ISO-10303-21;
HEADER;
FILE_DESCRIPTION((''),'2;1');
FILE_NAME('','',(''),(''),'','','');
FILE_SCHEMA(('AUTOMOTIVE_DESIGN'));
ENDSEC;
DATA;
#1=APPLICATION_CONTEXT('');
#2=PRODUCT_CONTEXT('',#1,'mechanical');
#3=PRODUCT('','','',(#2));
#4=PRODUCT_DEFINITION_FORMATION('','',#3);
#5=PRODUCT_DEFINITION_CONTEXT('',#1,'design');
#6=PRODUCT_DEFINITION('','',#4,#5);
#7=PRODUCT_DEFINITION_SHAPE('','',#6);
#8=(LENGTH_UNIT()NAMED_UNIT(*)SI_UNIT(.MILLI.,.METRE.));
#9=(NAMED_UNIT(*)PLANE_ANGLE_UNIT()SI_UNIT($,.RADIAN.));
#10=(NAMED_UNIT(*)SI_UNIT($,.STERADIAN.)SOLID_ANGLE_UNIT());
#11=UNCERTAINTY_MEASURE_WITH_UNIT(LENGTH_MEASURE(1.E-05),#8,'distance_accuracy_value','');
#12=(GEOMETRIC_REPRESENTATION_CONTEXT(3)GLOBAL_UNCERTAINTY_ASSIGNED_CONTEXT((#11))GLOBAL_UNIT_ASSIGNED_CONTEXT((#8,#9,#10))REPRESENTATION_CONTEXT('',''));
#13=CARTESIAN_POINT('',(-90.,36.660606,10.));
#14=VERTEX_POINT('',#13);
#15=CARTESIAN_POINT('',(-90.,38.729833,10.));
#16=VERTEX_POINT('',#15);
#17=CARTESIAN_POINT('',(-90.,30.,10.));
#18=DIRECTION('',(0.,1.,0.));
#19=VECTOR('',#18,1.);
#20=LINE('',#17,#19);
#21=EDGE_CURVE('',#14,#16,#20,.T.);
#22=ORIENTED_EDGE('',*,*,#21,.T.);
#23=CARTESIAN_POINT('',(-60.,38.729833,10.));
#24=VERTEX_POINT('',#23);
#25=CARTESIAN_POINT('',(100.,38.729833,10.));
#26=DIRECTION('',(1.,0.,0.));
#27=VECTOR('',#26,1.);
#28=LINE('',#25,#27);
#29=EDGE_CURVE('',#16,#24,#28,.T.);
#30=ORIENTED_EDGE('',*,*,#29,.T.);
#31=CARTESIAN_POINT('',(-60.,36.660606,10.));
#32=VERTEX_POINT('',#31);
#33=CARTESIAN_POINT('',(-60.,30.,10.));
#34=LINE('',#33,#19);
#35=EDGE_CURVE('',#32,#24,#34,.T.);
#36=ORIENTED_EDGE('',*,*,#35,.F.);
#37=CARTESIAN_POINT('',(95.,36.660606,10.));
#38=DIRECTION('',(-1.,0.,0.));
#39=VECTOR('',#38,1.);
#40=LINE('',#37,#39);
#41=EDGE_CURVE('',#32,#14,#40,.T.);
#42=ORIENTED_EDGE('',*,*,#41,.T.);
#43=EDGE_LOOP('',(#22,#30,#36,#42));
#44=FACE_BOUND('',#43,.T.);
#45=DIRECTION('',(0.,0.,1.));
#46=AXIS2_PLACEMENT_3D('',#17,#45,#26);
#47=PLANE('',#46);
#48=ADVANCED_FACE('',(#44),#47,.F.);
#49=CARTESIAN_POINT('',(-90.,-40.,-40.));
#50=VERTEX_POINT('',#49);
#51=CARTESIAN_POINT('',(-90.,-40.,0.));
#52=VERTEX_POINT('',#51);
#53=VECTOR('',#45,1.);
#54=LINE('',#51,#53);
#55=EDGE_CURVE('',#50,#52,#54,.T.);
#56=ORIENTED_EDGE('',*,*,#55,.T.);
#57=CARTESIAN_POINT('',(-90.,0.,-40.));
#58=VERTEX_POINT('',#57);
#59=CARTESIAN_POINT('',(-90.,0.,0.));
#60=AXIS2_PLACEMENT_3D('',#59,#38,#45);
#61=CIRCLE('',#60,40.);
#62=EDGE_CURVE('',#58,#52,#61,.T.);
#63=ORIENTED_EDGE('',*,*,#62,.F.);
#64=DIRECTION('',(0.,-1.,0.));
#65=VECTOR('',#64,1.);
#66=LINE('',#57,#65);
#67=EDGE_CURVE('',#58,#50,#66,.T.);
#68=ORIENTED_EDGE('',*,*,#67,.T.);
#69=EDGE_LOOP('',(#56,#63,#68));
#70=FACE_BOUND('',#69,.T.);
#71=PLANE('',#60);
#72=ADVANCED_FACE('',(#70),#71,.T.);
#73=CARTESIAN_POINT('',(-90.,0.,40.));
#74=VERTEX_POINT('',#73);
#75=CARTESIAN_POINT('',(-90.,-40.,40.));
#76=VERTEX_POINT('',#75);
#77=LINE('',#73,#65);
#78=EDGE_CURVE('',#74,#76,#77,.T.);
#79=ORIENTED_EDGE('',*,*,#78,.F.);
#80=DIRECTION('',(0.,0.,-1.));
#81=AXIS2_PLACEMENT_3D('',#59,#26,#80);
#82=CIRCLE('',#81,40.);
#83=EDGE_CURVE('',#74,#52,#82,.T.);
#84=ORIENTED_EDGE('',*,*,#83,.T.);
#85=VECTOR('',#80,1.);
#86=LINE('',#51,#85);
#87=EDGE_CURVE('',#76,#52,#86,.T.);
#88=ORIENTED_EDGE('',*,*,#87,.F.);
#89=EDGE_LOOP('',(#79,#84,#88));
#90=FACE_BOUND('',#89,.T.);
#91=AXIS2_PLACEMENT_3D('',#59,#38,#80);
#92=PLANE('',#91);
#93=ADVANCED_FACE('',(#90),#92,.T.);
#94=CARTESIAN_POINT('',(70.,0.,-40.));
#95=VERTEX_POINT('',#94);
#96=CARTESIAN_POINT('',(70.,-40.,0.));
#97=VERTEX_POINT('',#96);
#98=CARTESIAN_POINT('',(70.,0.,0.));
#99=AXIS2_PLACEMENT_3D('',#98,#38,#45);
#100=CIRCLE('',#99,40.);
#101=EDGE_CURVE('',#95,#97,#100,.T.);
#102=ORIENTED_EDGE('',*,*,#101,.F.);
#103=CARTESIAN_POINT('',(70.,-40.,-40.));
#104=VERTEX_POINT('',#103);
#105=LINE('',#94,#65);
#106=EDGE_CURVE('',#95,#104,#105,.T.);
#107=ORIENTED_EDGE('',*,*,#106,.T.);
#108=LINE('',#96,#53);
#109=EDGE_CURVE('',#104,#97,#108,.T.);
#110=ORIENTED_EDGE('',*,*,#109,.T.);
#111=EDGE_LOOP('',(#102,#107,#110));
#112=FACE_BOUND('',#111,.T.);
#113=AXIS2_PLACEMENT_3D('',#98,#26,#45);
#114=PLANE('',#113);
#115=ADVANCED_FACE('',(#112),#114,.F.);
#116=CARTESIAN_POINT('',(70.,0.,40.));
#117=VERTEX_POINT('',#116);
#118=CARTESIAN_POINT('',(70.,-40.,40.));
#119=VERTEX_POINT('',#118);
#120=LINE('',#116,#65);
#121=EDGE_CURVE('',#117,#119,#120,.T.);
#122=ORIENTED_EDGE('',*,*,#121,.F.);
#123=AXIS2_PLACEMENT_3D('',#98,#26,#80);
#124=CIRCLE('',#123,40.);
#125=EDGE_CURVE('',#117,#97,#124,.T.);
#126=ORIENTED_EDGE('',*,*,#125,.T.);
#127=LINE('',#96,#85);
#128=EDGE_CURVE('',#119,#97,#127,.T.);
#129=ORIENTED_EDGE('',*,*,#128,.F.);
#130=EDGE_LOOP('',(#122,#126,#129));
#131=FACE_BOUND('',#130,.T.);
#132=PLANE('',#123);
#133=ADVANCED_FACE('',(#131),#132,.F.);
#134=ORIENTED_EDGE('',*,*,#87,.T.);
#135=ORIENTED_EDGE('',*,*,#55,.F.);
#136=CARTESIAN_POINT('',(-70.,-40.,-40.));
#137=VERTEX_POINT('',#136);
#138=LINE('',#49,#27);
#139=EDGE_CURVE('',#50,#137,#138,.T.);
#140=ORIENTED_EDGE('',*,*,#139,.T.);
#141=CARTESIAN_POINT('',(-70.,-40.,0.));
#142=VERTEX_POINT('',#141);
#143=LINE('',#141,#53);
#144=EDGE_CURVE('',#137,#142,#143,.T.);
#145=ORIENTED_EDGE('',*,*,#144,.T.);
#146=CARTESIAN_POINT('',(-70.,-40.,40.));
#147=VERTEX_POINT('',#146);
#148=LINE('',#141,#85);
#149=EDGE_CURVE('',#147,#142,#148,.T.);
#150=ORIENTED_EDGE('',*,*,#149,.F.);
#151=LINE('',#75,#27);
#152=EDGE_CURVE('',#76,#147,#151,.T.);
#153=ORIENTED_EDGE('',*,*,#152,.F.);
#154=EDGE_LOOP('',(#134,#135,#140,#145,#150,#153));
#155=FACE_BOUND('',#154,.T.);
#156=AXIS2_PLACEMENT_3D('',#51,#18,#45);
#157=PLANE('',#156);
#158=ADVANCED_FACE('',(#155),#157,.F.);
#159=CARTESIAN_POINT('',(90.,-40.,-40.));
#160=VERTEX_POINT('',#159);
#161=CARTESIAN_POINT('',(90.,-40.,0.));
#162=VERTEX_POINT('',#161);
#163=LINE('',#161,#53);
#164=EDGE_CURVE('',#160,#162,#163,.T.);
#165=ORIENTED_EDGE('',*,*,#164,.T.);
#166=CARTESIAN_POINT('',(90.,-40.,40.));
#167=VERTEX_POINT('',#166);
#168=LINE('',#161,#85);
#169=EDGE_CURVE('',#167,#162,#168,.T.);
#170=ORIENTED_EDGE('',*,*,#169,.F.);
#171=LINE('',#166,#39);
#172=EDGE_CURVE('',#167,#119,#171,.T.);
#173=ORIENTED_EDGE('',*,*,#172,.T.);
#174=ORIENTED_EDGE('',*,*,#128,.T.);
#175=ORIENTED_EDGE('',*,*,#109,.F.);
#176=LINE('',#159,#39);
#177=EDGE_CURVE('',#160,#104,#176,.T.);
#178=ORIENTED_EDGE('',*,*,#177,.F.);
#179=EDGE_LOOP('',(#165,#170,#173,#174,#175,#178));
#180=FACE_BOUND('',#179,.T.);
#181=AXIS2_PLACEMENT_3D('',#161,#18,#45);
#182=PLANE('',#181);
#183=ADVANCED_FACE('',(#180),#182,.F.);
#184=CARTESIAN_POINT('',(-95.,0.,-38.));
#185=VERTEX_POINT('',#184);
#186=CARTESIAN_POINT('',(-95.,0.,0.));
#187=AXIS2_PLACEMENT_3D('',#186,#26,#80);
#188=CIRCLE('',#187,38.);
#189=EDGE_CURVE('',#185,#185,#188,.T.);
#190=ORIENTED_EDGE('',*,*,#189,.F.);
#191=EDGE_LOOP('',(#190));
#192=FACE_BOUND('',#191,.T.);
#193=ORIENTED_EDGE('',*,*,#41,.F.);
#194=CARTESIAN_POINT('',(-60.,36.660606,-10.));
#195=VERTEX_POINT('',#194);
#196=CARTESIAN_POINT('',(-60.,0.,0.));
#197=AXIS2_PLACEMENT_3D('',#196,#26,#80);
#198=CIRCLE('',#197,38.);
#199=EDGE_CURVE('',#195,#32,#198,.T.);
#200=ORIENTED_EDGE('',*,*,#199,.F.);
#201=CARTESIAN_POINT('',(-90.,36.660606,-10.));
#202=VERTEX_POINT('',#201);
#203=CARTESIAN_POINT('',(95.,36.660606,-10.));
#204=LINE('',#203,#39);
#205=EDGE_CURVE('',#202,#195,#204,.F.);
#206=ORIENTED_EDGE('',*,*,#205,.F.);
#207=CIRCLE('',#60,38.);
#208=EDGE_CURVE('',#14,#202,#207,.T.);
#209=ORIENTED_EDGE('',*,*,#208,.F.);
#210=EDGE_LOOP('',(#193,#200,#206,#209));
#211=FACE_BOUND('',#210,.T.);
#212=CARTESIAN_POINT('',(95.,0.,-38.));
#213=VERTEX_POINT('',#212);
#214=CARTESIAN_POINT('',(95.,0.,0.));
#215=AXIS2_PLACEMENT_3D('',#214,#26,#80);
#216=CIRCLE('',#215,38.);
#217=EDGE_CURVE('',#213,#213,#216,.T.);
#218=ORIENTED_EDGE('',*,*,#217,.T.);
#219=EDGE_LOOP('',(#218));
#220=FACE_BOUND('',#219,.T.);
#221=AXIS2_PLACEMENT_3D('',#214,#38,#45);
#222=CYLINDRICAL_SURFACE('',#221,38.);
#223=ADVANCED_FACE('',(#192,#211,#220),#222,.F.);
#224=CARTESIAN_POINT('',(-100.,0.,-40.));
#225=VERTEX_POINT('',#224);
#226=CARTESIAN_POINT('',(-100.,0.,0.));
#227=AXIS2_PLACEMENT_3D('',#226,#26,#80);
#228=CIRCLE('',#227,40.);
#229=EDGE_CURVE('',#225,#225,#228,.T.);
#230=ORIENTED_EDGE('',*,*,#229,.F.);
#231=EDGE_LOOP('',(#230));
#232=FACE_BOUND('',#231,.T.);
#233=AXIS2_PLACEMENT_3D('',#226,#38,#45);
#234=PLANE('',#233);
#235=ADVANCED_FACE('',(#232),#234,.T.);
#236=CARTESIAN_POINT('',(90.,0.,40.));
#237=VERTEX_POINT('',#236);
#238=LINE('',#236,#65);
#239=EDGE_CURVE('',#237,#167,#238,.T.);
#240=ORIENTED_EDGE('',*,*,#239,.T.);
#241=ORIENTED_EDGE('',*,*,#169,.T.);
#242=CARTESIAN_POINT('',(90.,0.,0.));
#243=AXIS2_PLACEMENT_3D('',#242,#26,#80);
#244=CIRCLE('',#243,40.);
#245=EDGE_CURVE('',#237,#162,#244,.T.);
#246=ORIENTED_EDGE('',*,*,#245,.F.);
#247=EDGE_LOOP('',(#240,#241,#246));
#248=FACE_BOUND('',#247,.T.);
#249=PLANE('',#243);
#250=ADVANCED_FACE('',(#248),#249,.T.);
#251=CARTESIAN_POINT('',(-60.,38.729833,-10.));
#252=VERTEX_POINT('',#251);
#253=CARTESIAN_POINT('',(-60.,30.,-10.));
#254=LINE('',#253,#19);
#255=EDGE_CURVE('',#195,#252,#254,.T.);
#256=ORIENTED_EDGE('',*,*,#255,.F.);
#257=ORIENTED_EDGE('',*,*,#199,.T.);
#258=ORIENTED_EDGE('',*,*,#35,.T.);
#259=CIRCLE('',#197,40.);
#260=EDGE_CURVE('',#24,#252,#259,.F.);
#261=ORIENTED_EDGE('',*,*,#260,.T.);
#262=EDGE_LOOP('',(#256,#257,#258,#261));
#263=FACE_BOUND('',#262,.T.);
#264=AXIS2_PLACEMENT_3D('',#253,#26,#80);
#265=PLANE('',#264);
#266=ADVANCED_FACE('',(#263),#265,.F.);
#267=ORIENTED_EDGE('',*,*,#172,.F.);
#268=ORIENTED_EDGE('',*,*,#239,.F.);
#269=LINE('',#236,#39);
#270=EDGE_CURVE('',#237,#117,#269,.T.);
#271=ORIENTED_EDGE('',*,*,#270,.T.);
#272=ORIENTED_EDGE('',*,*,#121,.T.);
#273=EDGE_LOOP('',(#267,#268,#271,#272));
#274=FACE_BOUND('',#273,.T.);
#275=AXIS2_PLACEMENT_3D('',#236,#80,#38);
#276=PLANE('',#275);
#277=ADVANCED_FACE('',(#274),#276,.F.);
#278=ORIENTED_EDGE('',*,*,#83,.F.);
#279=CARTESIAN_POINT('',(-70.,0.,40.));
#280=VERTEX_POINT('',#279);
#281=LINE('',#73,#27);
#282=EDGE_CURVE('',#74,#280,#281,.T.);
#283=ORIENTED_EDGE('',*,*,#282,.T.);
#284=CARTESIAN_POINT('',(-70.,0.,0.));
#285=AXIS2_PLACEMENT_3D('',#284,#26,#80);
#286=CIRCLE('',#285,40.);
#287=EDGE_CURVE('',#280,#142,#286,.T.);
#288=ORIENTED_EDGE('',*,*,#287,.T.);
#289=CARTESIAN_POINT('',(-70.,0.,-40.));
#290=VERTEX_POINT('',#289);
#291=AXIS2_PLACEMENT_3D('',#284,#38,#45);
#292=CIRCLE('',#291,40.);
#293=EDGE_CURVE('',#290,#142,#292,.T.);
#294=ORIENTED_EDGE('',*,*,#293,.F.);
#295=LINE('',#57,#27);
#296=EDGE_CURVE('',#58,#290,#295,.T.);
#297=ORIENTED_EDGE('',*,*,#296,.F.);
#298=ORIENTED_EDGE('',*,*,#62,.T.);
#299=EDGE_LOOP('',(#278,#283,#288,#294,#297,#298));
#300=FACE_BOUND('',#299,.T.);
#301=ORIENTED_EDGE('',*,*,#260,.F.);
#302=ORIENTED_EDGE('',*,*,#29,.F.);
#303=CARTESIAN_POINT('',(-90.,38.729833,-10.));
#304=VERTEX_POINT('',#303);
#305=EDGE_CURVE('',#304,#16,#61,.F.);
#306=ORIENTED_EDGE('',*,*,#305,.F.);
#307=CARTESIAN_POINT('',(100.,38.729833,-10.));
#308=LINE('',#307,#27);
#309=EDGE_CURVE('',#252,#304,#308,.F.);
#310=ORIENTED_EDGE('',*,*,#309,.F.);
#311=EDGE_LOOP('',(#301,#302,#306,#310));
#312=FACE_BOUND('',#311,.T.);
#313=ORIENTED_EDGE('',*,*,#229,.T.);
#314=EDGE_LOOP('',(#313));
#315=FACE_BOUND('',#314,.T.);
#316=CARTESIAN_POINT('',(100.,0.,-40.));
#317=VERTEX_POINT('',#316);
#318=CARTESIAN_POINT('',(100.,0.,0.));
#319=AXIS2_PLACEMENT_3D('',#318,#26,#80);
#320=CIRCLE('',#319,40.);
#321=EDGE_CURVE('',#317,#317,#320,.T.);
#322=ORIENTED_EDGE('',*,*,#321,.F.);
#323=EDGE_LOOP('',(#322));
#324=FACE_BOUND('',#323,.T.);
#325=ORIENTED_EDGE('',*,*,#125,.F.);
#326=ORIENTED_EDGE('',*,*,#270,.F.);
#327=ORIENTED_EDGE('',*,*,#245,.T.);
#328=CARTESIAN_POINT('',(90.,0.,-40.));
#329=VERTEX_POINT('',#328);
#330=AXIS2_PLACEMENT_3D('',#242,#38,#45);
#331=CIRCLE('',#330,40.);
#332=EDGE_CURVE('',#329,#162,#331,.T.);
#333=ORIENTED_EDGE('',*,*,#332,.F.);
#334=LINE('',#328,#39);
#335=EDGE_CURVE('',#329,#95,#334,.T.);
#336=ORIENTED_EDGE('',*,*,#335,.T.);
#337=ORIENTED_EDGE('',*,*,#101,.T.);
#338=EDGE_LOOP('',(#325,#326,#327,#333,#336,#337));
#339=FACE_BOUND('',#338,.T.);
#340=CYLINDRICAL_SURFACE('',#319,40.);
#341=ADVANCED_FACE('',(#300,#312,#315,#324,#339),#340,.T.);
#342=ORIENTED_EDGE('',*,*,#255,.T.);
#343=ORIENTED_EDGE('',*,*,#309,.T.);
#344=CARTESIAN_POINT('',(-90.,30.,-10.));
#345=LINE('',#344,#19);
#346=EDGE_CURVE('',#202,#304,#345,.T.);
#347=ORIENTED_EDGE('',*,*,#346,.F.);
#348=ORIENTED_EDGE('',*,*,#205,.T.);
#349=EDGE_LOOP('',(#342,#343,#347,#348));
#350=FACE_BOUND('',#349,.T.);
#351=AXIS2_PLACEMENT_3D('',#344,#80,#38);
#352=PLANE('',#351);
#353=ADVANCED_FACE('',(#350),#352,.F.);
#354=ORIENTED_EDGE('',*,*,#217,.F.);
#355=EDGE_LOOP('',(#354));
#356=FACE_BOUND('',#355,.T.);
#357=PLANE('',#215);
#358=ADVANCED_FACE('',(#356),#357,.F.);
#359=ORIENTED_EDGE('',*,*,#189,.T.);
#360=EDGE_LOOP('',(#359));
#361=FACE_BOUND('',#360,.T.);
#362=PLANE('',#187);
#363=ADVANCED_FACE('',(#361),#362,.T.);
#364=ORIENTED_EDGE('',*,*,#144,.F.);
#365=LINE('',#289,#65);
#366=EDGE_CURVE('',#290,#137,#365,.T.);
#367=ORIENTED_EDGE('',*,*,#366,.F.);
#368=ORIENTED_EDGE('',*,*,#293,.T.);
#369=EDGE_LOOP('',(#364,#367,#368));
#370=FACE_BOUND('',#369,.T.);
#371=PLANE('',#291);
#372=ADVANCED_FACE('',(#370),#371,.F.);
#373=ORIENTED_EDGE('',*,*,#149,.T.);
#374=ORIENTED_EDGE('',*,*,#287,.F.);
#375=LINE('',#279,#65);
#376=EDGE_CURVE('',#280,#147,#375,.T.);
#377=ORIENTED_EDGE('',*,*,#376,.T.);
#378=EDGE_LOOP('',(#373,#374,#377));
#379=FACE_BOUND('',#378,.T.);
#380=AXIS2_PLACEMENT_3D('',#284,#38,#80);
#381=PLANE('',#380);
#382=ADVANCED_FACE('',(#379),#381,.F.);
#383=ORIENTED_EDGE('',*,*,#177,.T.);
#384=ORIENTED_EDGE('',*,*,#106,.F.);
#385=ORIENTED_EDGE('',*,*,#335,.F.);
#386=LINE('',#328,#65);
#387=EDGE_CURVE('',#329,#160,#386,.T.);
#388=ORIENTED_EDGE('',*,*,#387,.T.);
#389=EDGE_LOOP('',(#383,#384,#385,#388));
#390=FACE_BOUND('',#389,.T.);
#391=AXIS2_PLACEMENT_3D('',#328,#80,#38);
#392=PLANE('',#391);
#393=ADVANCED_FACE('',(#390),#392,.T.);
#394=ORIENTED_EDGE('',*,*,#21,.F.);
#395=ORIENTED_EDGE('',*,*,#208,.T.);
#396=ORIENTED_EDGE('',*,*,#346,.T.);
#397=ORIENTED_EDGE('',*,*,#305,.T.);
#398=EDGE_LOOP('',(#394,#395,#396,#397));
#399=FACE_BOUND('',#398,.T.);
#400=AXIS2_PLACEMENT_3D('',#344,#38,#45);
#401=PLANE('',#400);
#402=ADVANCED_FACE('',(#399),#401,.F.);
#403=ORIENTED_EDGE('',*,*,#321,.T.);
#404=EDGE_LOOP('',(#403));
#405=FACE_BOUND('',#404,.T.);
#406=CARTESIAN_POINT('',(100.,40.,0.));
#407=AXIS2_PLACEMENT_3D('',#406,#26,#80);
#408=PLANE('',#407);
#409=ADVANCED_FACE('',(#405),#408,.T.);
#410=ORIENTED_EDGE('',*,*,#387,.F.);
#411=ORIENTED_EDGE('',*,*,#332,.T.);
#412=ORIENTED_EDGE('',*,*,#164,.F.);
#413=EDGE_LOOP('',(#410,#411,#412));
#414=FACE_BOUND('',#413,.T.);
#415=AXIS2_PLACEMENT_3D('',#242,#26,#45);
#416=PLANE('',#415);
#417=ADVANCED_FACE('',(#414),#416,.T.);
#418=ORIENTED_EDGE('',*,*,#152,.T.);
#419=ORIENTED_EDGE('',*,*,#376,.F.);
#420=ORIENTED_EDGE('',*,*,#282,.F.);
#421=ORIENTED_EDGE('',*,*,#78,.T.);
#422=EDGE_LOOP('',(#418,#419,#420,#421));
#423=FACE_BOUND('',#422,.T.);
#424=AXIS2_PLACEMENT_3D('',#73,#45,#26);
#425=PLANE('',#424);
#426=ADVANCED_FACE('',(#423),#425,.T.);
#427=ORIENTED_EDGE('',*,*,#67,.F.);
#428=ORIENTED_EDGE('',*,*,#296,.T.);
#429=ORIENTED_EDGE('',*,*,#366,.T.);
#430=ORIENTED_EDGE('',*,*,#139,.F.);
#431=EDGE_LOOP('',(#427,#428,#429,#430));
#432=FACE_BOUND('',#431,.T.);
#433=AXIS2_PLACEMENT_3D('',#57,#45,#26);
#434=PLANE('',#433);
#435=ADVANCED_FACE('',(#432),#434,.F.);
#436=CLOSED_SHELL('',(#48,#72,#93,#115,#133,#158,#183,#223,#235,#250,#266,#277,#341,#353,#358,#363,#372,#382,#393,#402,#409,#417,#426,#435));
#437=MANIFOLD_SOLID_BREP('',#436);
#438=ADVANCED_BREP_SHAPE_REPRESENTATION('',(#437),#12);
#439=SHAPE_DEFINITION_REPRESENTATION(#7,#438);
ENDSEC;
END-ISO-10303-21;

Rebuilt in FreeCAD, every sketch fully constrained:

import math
import FreeCAD as App
import Part
import Sketcher


def add_polygon(sketch, points):
    """Adds a closed chain of lines whose ends are joined by coincident constraints."""
    first, n = sketch.GeometryCount, len(points)
    for a, b in zip(points, points[1:] + points[:1]):
        sketch.addGeometry(Part.LineSegment(App.Vector(*a, 0), App.Vector(*b, 0)), False)
    for i in range(n):
        sketch.addConstraint(Sketcher.Constraint("Coincident", first + i, 2, first + (i + 1) % n, 1))

doc = App.newDocument("Part")
body = doc.addObject("PartDesign::Body", "Body")

sketch1 = body.newObject("Sketcher::SketchObject", "Sketch")
sketch1.AttachmentSupport = (doc.getObject("XY_Plane"), [""])
sketch1.MapMode = "FlatFace"
add_polygon(sketch1, [(-100, 40), (-100, 0), (100, 0), (100, 40)])
sketch1.addConstraint(Sketcher.Constraint("Vertical", 0))
sketch1.addConstraint(Sketcher.Constraint("Horizontal", 1))
sketch1.addConstraint(Sketcher.Constraint("Vertical", 2))
sketch1.addConstraint(Sketcher.Constraint("Horizontal", 3))
sketch1.addConstraint(Sketcher.Constraint("Symmetric", 0, 2, 1, 2, -1, 1))
sketch1.addConstraint(Sketcher.Constraint("DistanceX", 1, 1, 1, 2, 200.0))
sketch1.addConstraint(Sketcher.Constraint("DistanceY", 0, 2, 0, 1, 40.0))
revolution = body.newObject("PartDesign::Revolution", "Revolution")
revolution.Profile = sketch1
revolution.ReferenceAxis = (sketch1, ["H_Axis"])
revolution.Angle = 360

sketch2 = body.newObject("Sketcher::SketchObject", "Sketch001")
sketch2.AttachmentSupport = (doc.getObject("YZ_Plane"), [""])
sketch2.MapMode = "FlatFace"
sketch2.AttachmentOffset = App.Placement(App.Vector(0, 0, -95), App.Rotation())
sketch2.addGeometry(Part.Circle(App.Vector(0, 0, 0), App.Vector(0, 0, 1), 38), False)
sketch2.addConstraint(Sketcher.Constraint("Coincident", 0, 3, -1, 1))
sketch2.addConstraint(Sketcher.Constraint("Diameter", 0, 76.0))
pocket1 = body.newObject("PartDesign::Pocket", "Pocket")
pocket1.Profile = sketch2
pocket1.Length = 190
pocket1.Reversed = True

sketch3 = body.newObject("Sketcher::SketchObject", "Sketch002")
sketch3.AttachmentSupport = (doc.getObject("XZ_Plane"), [""])
sketch3.MapMode = "FlatFace"
sketch3.AttachmentOffset = App.Placement(App.Vector(0, 0, -40), App.Rotation())
add_polygon(sketch3, [(-90, -10), (-90, 10), (-60, 10), (-60, -10)])
sketch3.addConstraint(Sketcher.Constraint("Vertical", 0))
sketch3.addConstraint(Sketcher.Constraint("Horizontal", 1))
sketch3.addConstraint(Sketcher.Constraint("Vertical", 2))
sketch3.addConstraint(Sketcher.Constraint("Horizontal", 3))
sketch3.addConstraint(Sketcher.Constraint("DistanceX", 1, 1, 1, 2, 30.0))
sketch3.addConstraint(Sketcher.Constraint("DistanceY", 0, 1, 0, 2, 20.0))
sketch3.addConstraint(Sketcher.Constraint("DistanceX", 0, 2, -1, 1, 90.0))
sketch3.addConstraint(Sketcher.Constraint("DistanceY", -1, 1, 0, 2, 10.0))
pocket2 = body.newObject("PartDesign::Pocket", "Pocket001")
pocket2.Profile = sketch3
pocket2.Length = 10
pocket2.Reversed = True

sketch4 = body.newObject("Sketcher::SketchObject", "Sketch003")
sketch4.AttachmentSupport = (doc.getObject("YZ_Plane"), [""])
sketch4.MapMode = "FlatFace"
sketch4.AttachmentOffset = App.Placement(App.Vector(0, 0, 80), App.Rotation())
sketch4.addGeometry(Part.ArcOfCircle(Part.Circle(App.Vector(0, 0, 0), App.Vector(0, 0, 1), 40), math.radians(90), math.radians(180)), False)
sketch4.addGeometry(Part.LineSegment(App.Vector(0, 40, 0), App.Vector(-40, 40, 0)), False)
sketch4.addGeometry(Part.LineSegment(App.Vector(-40, 40, 0), App.Vector(-40, 0, 0)), False)
sketch4.addConstraint(Sketcher.Constraint("Tangent", 0, 1, 1, 1))
sketch4.addConstraint(Sketcher.Constraint("Coincident", 1, 2, 2, 1))
sketch4.addConstraint(Sketcher.Constraint("Tangent", 2, 2, 0, 2))
sketch4.addConstraint(Sketcher.Constraint("Horizontal", 1))
sketch4.addConstraint(Sketcher.Constraint("Vertical", 2))
sketch4.addConstraint(Sketcher.Constraint("Coincident", 0, 3, -1, 1))
sketch4.addConstraint(Sketcher.Constraint("Radius", 0, 40.0))
pad1 = body.newObject("PartDesign::Pad", "Pad")
pad1.Profile = sketch4
pad1.Length = 20
pad1.Midplane = True
doc.recompute()

mirrored = body.newObject("PartDesign::Mirrored", "Mirrored")
mirrored.Originals = [pad1]
mirrored.MirrorPlane = (doc.getObject("XY_Plane"), [""])
body.Tip = mirrored
doc.recompute()

mirrored2 = body.newObject("PartDesign::Mirrored", "Mirrored001")
mirrored2.Originals = [pad1]
mirrored2.MirrorPlane = (doc.getObject("YZ_Plane"), [""])
body.Tip = mirrored2

sketch5 = body.newObject("Sketcher::SketchObject", "Sketch004")
sketch5.AttachmentSupport = (doc.getObject("YZ_Plane"), [""])
sketch5.MapMode = "FlatFace"
sketch5.AttachmentOffset = App.Placement(App.Vector(0, 0, -80), App.Rotation())
sketch5.addGeometry(Part.ArcOfCircle(Part.Circle(App.Vector(0, 0, 0), App.Vector(0, 0, 1), 40), math.radians(-180), math.radians(-90)), False)
sketch5.addGeometry(Part.LineSegment(App.Vector(0, -40, 0), App.Vector(-40, -40, 0)), False)
sketch5.addGeometry(Part.LineSegment(App.Vector(-40, -40, 0), App.Vector(-40, 0, 0)), False)
sketch5.addConstraint(Sketcher.Constraint("Tangent", 0, 2, 1, 1))
sketch5.addConstraint(Sketcher.Constraint("Coincident", 1, 2, 2, 1))
sketch5.addConstraint(Sketcher.Constraint("Tangent", 2, 2, 0, 1))
sketch5.addConstraint(Sketcher.Constraint("Horizontal", 1))
sketch5.addConstraint(Sketcher.Constraint("Vertical", 2))
sketch5.addConstraint(Sketcher.Constraint("Coincident", 0, 3, -1, 1))
sketch5.addConstraint(Sketcher.Constraint("Radius", 0, 40.0))
pad2 = body.newObject("PartDesign::Pad", "Pad001")
pad2.Profile = sketch5
pad2.Length = 20
pad2.Midplane = True

doc.recompute()
